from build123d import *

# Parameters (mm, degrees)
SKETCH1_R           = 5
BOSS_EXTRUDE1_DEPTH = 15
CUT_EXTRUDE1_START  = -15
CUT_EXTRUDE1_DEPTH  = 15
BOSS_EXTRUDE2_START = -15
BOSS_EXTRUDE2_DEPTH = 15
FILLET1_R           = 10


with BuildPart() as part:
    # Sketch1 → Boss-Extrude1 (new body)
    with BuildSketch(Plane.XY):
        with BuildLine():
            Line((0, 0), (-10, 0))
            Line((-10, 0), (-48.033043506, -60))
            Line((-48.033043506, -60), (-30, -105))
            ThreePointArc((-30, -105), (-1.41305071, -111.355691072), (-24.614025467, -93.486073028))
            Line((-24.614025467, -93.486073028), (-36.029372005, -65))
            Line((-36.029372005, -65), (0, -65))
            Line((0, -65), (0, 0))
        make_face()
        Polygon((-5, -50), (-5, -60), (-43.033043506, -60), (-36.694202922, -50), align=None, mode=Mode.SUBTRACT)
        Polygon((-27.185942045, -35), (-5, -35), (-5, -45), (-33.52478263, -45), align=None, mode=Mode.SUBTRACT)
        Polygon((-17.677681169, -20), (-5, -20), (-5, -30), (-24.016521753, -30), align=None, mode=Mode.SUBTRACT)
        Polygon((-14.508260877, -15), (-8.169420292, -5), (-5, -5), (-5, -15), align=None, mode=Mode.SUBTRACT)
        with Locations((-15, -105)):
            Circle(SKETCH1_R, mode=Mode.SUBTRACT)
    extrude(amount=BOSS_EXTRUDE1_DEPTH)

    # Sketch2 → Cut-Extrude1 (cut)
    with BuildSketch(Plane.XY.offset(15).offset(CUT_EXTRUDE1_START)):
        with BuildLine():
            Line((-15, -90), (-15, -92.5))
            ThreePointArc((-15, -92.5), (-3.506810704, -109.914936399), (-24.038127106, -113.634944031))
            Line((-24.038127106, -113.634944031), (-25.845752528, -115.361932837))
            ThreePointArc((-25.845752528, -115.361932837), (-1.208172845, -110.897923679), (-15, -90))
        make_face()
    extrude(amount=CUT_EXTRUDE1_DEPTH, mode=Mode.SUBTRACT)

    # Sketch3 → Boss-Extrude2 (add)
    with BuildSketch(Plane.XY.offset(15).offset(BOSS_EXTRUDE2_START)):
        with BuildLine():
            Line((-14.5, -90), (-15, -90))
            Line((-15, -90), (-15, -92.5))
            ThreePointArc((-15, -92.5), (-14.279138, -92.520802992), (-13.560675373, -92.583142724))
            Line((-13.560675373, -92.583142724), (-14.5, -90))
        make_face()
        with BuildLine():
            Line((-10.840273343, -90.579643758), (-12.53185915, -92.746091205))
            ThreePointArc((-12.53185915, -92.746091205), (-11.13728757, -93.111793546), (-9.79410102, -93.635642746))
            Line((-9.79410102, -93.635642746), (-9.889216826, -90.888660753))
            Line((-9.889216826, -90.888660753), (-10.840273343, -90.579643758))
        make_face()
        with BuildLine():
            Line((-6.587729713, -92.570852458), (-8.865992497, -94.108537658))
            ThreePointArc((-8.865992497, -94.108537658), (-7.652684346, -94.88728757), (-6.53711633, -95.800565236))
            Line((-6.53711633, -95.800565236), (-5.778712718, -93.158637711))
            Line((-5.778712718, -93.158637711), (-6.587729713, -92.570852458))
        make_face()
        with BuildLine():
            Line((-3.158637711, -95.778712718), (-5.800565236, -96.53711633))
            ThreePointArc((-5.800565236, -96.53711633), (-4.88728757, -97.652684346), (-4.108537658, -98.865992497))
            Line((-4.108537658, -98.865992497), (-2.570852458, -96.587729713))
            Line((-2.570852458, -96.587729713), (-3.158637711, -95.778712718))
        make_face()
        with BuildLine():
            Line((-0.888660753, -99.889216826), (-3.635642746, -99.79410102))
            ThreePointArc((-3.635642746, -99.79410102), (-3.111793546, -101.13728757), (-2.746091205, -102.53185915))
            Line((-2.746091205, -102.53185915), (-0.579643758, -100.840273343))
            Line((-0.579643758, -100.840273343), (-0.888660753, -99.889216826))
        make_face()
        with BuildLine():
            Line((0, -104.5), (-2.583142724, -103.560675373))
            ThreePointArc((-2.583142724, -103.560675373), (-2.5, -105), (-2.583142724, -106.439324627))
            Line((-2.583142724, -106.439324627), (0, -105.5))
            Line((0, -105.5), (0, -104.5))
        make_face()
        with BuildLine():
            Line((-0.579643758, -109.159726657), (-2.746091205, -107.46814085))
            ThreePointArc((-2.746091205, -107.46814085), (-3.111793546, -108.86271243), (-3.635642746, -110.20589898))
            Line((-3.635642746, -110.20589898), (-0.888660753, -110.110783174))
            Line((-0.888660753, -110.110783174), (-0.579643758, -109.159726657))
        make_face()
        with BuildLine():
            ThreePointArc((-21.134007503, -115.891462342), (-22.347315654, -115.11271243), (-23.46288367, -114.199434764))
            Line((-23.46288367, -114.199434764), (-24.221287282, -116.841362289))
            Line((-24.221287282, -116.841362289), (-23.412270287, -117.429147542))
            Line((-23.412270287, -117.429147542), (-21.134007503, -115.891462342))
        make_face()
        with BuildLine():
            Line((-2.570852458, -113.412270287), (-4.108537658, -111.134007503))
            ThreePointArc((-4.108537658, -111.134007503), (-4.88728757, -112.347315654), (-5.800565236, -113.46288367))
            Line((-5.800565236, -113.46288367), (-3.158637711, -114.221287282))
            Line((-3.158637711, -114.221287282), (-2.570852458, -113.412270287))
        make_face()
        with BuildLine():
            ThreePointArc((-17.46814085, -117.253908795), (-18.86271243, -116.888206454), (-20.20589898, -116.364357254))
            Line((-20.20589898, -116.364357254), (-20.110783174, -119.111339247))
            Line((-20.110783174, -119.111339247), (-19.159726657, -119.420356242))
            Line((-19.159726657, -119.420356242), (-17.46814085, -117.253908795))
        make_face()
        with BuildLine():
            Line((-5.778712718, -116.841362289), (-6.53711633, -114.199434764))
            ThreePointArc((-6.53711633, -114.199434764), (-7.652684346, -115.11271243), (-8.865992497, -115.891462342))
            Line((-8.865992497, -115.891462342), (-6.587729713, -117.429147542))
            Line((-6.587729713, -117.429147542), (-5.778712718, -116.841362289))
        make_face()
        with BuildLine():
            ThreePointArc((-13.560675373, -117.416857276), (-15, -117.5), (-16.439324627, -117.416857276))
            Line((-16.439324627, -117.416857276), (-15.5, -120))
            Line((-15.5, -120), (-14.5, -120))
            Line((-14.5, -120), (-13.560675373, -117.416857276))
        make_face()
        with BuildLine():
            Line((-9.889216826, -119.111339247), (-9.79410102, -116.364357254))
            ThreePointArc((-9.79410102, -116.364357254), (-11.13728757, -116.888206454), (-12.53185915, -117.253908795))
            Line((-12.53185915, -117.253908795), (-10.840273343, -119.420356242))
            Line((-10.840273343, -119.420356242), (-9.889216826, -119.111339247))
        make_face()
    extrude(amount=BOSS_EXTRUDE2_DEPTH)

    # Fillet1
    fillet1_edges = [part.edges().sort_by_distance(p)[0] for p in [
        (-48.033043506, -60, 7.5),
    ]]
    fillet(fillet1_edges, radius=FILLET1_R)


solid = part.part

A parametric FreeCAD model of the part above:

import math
import FreeCAD as App
import Part
import Sketcher
Q = App.Units.Quantity


def edges_at(feature, points):
    """Names of the edges that pass closest to the given points."""
    edges = feature.Shape.Edges
    near = lambda p: min(range(len(edges)), key=lambda i: edges[i].distToShape(Part.Vertex(*p))[0])
    return sorted({f"Edge{near(p) + 1}" for p in points})


def add_polygon(sketch, points):
    """Adds a closed chain of lines whose ends are joined by coincident constraints."""
    first, n = sketch.GeometryCount, len(points)
    for a, b in zip(points, points[1:] + points[:1]):
        sketch.addGeometry(Part.LineSegment(App.Vector(*a, 0), App.Vector(*b, 0)), False)
    for i in range(n):
        sketch.addConstraint(Sketcher.Constraint("Coincident", first + i, 2, first + (i + 1) % n, 1))

doc = App.newDocument("Part")
body = doc.addObject("PartDesign::Body", "Body")

sketch1 = body.newObject("Sketcher::SketchObject", "Sketch")
sketch1.AttachmentSupport = (doc.getObject("XY_Plane"), [""])
sketch1.MapMode = "FlatFace"
sketch1.addGeometry(Part.LineSegment(App.Vector(0, 0, 0), App.Vector(-10, 0, 0)), False)
sketch1.addGeometry(Part.LineSegment(App.Vector(-10, 0, 0), App.Vector(-48.033044, -60, 0)), False)
sketch1.addGeometry(Part.LineSegment(App.Vector(-48.033044, -60, 0), App.Vector(-30, -105, 0)), False)
sketch1.addGeometry(Part.ArcOfCircle(Part.Circle(App.Vector(-15, -105, 0), App.Vector(0, 0, 1), 15), math.radians(180), math.radians(489.861578)), False)
sketch1.addGeometry(Part.LineSegment(App.Vector(-24.614025, -93.486073, 0), App.Vector(-36.029372, -65, 0)), False)
sketch1.addGeometry(Part.LineSegment(App.Vector(-36.029372, -65, 0), App.Vector(0, -65, 0)), False)
sketch1.addGeometry(Part.LineSegment(App.Vector(0, -65, 0), App.Vector(0, 0, 0)), False)
sketch1.addGeometry(Part.Circle(App.Vector(-15, -105, 0), App.Vector(0, 0, 1), 5), False)
add_polygon(sketch1, [(-36.694203, -50), (-5, -50), (-5, -60), (-43.033044, -60)])
add_polygon(sketch1, [(-33.524783, -45), (-27.185942, -35), (-5, -35), (-5, -45)])
add_polygon(sketch1, [(-24.016522, -30), (-17.677681, -20), (-5, -20), (-5, -30)])
add_polygon(sketch1, [(-5, -15), (-14.508261, -15), (-8.16942, -5), (-5, -5)])
sketch1.addConstraint([
    Sketcher.Constraint("Coincident", 0, 2, 1, 1),
    Sketcher.Constraint("Coincident", 1, 2, 2, 1),
    Sketcher.Constraint("Coincident", 2, 2, 3, 1),
    Sketcher.Constraint("Coincident", 3, 2, 4, 1),
    Sketcher.Constraint("Coincident", 4, 2, 5, 1),
    Sketcher.Constraint("Coincident", 5, 2, 6, 1),
    Sketcher.Constraint("Coincident", 6, 2, 0, 1),
    Sketcher.Constraint("Horizontal", 0),
    Sketcher.Constraint("Horizontal", 5),
    Sketcher.Constraint("Vertical", 6),
    Sketcher.Constraint("Horizontal", 8),
    Sketcher.Constraint("Vertical", 9),
    Sketcher.Constraint("Horizontal", 10),
    Sketcher.Constraint("Horizontal", 13),
    Sketcher.Constraint("Vertical", 14),
    Sketcher.Constraint("Horizontal", 15),
    Sketcher.Constraint("Horizontal", 17),
    Sketcher.Constraint("Vertical", 18),
    Sketcher.Constraint("Horizontal", 19),
    Sketcher.Constraint("Horizontal", 20),
    Sketcher.Constraint("Horizontal", 22),
    Sketcher.Constraint("Vertical", 23),
    Sketcher.Constraint("Coincident", 6, 2, -1, 1),
    Sketcher.Constraint("Coincident", 7, 3, 3, 3),
    Sketcher.Constraint("Parallel", 2, 4),
    Sketcher.Constraint("Parallel", 1, 11),
    Sketcher.Constraint("Parallel", 11, 12),
    Sketcher.Constraint("Parallel", 12, 16),
    Sketcher.Constraint("Parallel", 16, 21),
    Sketcher.Constraint("Horizontal", 7, 3, 2, 2),
    Sketcher.Constraint("Horizontal", 1, 2, 9, 2),
    Sketcher.Constraint("Vertical", 9, 2, 13, 2),
    Sketcher.Constraint("Vertical", 14, 2, 17, 2),
    Sketcher.Constraint("Vertical", 18, 2, 22, 2),
    Sketcher.Constraint("Equal", 0, 9),
    Sketcher.Constraint("Equal", 9, 14),
    Sketcher.Constraint("Equal", 14, 18),
    Sketcher.Constraint("Equal", 18, 23),
    Sketcher.Constraint("Diameter", 7, 10.0),
    Sketcher.Constraint("Radius", 3, 15.0),
    Sketcher.Constraint("DistanceX", 0, 2, 0, 1, 10.0),
    Sketcher.Constraint("DistanceY", 6, 1, 6, 2, 65.0),
    Sketcher.Constraint("DistanceX", 3, 3, -1, 1, 15.0),
    Sketcher.Constraint("DistanceY", 3, 3, -1, 1, 105.0),
    Sketcher.Constraint("DistanceY", 1, 2, -1, 1, 60.0),
    Sketcher.Constraint("DistanceX", 8, 2, -1, 1, 5.0),
    Sketcher.Constraint("DistanceY", 12, 2, -1, 1, 35.0),
    Sketcher.Constraint("DistanceY", 16, 2, -1, 1, 20.0),
    Sketcher.Constraint("DistanceY", 20, 2, -1, 1, 15.0),
    Sketcher.Constraint("DistanceX", 1, 2, 10, 2, 5.0),
    Sketcher.Constraint("Distance", 11, 11.839802),
    Sketcher.Constraint("DistanceX", 17, 1, 17, 2, 12.677681),
    Sketcher.Constraint("DistanceX", 20, 2, 20, 1, 9.508261),
    Sketcher.Constraint("DistanceX", 10, 2, 12, 2, 15.847101),
    Sketcher.Constraint("DistanceX", 5, 1, 5, 2, 36.029372),
])
pad1 = body.newObject("PartDesign::Pad", "Pad")
pad1.Profile = sketch1
pad1.Length = 15

sketch2 = body.newObject("Sketcher::SketchObject", "Sketch001")
sketch2.AttachmentSupport = (doc.getObject("XY_Plane"), [""])
sketch2.MapMode = "FlatFace"
sketch2.addGeometry([
    Part.LineSegment(App.Vector(-15, -90, 0), App.Vector(-15, -92.5, 0)),
    Part.ArcOfCircle(Part.Circle(App.Vector(-15, -105, 0), App.Vector(0, 0, 1), 12.5), math.radians(-136.306886), math.radians(90)),
    Part.LineSegment(App.Vector(-24.038127, -113.634944, 0), App.Vector(-25.845753, -115.361933, 0)),
    Part.ArcOfCircle(Part.Circle(App.Vector(-15, -105, 0), App.Vector(0, 0, 1), 15), math.radians(-136.306886), math.radians(90)),
], False)
sketch2.addConstraint([
    Sketcher.Constraint("Coincident", 0, 2, 1, 2),
    Sketcher.Constraint("Coincident", 1, 1, 2, 1),
    Sketcher.Constraint("Coincident", 2, 2, 3, 1),
    Sketcher.Constraint("Coincident", 3, 2, 0, 1),
    Sketcher.Constraint("Vertical", 0),
    Sketcher.Constraint("Coincident", 3, 3, 1, 3),
    Sketcher.Constraint("Vertical", 3, 3, 0, 2),
    Sketcher.Constraint("Radius", 3, 15.0),
    Sketcher.Constraint("Radius", 1, 12.5),
    Sketcher.Constraint("DistanceX", 1, 3, -1, 1, 15.0),
    Sketcher.Constraint("DistanceY", 1, 3, -1, 1, 105.0),
    Sketcher.Constraint("DistanceY", 2, 2, 1, 1, 1.726989),
    Sketcher.Constraint("DistanceX", 1, 1, -1, 1, 24.038127),
])
pocket1 = body.newObject("PartDesign::Pocket", "Pocket")
pocket1.Profile = sketch2
pocket1.Length = 15
pocket1.Reversed = True

sketch3 = body.newObject("Sketcher::SketchObject", "Sketch002")
sketch3.AttachmentSupport = (doc.getObject("XY_Plane"), [""])
sketch3.MapMode = "FlatFace"
sketch3.addGeometry([
    Part.LineSegment(App.Vector(-14.5, -90, 0), App.Vector(-15, -90, 0)),
    Part.LineSegment(App.Vector(-15, -90, 0), App.Vector(-15, -92.5, 0)),
    Part.ArcOfCircle(Part.Circle(App.Vector(-15, -105, 0), App.Vector(0, 0, 1), 12.5), math.radians(83.387956), math.radians(90)),
    Part.LineSegment(App.Vector(-13.560675, -92.583143, 0), App.Vector(-14.5, -90, 0)),
    Part.LineSegment(App.Vector(-10.840273, -90.579644, 0), App.Vector(-12.531859, -92.746091, 0)),
    Part.ArcOfCircle(Part.Circle(App.Vector(-15, -105, 0), App.Vector(0, 0, 1), 12.5), math.radians(65.387955), math.radians(78.612044)),
    Part.LineSegment(App.Vector(-9.794101, -93.635643, 0), App.Vector(-9.889217, -90.888661, 0)),
    Part.LineSegment(App.Vector(-9.889217, -90.888661, 0), App.Vector(-10.840273, -90.579644, 0)),
    Part.LineSegment(App.Vector(-6.58773, -92.570852, 0), App.Vector(-8.865992, -94.108538, 0)),
    Part.ArcOfCircle(Part.Circle(App.Vector(-15, -105, 0), App.Vector(0, 0, 1), 12.5), math.radians(47.387955), math.radians(60.612045)),
    Part.LineSegment(App.Vector(-6.537116, -95.800565, 0), App.Vector(-5.778713, -93.158638, 0)),
    Part.LineSegment(App.Vector(-5.778713, -93.158638, 0), App.Vector(-6.58773, -92.570852, 0)),
    Part.LineSegment(App.Vector(-3.158638, -95.778713, 0), App.Vector(-5.800565, -96.537116, 0)),
    Part.ArcOfCircle(Part.Circle(App.Vector(-15, -105, 0), App.Vector(0, 0, 1), 12.5), math.radians(29.387955), math.radians(42.612045)),
    Part.LineSegment(App.Vector(-4.108538, -98.865992, 0), App.Vector(-2.570852, -96.58773, 0)),
    Part.LineSegment(App.Vector(-2.570852, -96.58773, 0), App.Vector(-3.158638, -95.778713, 0)),
    Part.LineSegment(App.Vector(-0.888661, -99.889217, 0), App.Vector(-3.635643, -99.794101, 0)),
    Part.ArcOfCircle(Part.Circle(App.Vector(-15, -105, 0), App.Vector(0, 0, 1), 12.5), math.radians(11.387956), math.radians(24.612045)),
    Part.LineSegment(App.Vector(-2.746091, -102.531859, 0), App.Vector(-0.579644, -100.840273, 0)),
    Part.LineSegment(App.Vector(-0.579644, -100.840273, 0), App.Vector(-0.888661, -99.889217, 0)),
    Part.LineSegment(App.Vector(0, -104.5, 0), App.Vector(-2.583143, -103.560675, 0)),
    Part.ArcOfCircle(Part.Circle(App.Vector(-15, -105, 0), App.Vector(0, 0, 1), 12.5), math.radians(-6.612044), math.radians(6.612044)),
    Part.LineSegment(App.Vector(-2.583143, -106.439325, 0), App.Vector(0, -105.5, 0)),
    Part.LineSegment(App.Vector(0, -105.5, 0), App.Vector(0, -104.5, 0)),
    Part.LineSegment(App.Vector(-0.579644, -109.159727, 0), App.Vector(-2.746091, -107.468141, 0)),
    Part.ArcOfCircle(Part.Circle(App.Vector(-15, -105, 0), App.Vector(0, 0, 1), 12.5), math.radians(-24.612045), math.radians(-11.387956)),
    Part.LineSegment(App.Vector(-3.635643, -110.205899, 0), App.Vector(-0.888661, -110.110783, 0)),
    Part.LineSegment(App.Vector(-0.888661, -110.110783, 0), App.Vector(-0.579644, -109.159727, 0)),
    Part.ArcOfCircle(Part.Circle(App.Vector(-15, -105, 0), App.Vector(0, 0, 1), 12.5), math.radians(-132.612045), math.radians(-119.387955)),
    Part.LineSegment(App.Vector(-23.462884, -114.199435, 0), App.Vector(-24.221287, -116.841362, 0)),
    Part.LineSegment(App.Vector(-24.221287, -116.841362, 0), App.Vector(-23.41227, -117.429148, 0)),
    Part.LineSegment(App.Vector(-23.41227, -117.429148, 0), App.Vector(-21.134008, -115.891462, 0)),
    Part.LineSegment(App.Vector(-2.570852, -113.41227, 0), App.Vector(-4.108538, -111.134008, 0)),
    Part.ArcOfCircle(Part.Circle(App.Vector(-15, -105, 0), App.Vector(0, 0, 1), 12.5), math.radians(-42.612045), math.radians(-29.387955)),
    Part.LineSegment(App.Vector(-5.800565, -113.462884, 0), App.Vector(-3.158638, -114.221287, 0)),
    Part.LineSegment(App.Vector(-3.158638, -114.221287, 0), App.Vector(-2.570852, -113.41227, 0)),
    Part.ArcOfCircle(Part.Circle(App.Vector(-15, -105, 0), App.Vector(0, 0, 1), 12.5), math.radians(-114.612045), math.radians(-101.387956)),
    Part.LineSegment(App.Vector(-20.205899, -116.364357, 0), App.Vector(-20.110783, -119.111339, 0)),
    Part.LineSegment(App.Vector(-20.110783, -119.111339, 0), App.Vector(-19.159727, -119.420356, 0)),
    Part.LineSegment(App.Vector(-19.159727, -119.420356, 0), App.Vector(-17.468141, -117.253909, 0)),
    Part.LineSegment(App.Vector(-5.778713, -116.841362, 0), App.Vector(-6.537116, -114.199435, 0)),
    Part.ArcOfCircle(Part.Circle(App.Vector(-15, -105, 0), App.Vector(0, 0, 1), 12.5), math.radians(-60.612045), math.radians(-47.387955)),
    Part.LineSegment(App.Vector(-8.865992, -115.891462, 0), App.Vector(-6.58773, -117.429148, 0)),
    Part.LineSegment(App.Vector(-6.58773, -117.429148, 0), App.Vector(-5.778713, -116.841362, 0)),
    Part.ArcOfCircle(Part.Circle(App.Vector(-15, -105, 0), App.Vector(0, 0, 1), 12.5), math.radians(-96.612044), math.radians(-83.387956)),
    Part.LineSegment(App.Vector(-16.439325, -117.416857, 0), App.Vector(-15.5, -120, 0)),
    Part.LineSegment(App.Vector(-15.5, -120, 0), App.Vector(-14.5, -120, 0)),
    Part.LineSegment(App.Vector(-14.5, -120, 0), App.Vector(-13.560675, -117.416857, 0)),
    Part.LineSegment(App.Vector(-9.889217, -119.111339, 0), App.Vector(-9.794101, -116.364357, 0)),
    Part.ArcOfCircle(Part.Circle(App.Vector(-15, -105, 0), App.Vector(0, 0, 1), 12.5), math.radians(-78.612044), math.radians(-65.387955)),
    Part.LineSegment(App.Vector(-12.531859, -117.253909, 0), App.Vector(-10.840273, -119.420356, 0)),
    Part.LineSegment(App.Vector(-10.840273, -119.420356, 0), App.Vector(-9.889217, -119.111339, 0)),
], False)
sketch3.addConstraint([
    Sketcher.Constraint("Coincident", 0, 2, 1, 1),
    Sketcher.Constraint("Coincident", 1, 2, 2, 2),
    Sketcher.Constraint("Coincident", 2, 1, 3, 1),
    Sketcher.Constraint("Coincident", 3, 2, 0, 1),
    Sketcher.Constraint("Coincident", 4, 2, 5, 2),
    Sketcher.Constraint("Coincident", 5, 1, 6, 1),
    Sketcher.Constraint("Coincident", 6, 2, 7, 1),
    Sketcher.Constraint("Coincident", 7, 2, 4, 1),
    Sketcher.Constraint("Coincident", 8, 2, 9, 2),
    Sketcher.Constraint("Coincident", 9, 1, 10, 1),
    Sketcher.Constraint("Coincident", 10, 2, 11, 1),
    Sketcher.Constraint("Coincident", 11, 2, 8, 1),
    Sketcher.Constraint("Coincident", 12, 2, 13, 2),
    Sketcher.Constraint("Coincident", 13, 1, 14, 1),
    Sketcher.Constraint("Coincident", 14, 2, 15, 1),
    Sketcher.Constraint("Coincident", 15, 2, 12, 1),
    Sketcher.Constraint("Coincident", 16, 2, 17, 2),
    Sketcher.Constraint("Coincident", 17, 1, 18, 1),
    Sketcher.Constraint("Coincident", 18, 2, 19, 1),
    Sketcher.Constraint("Coincident", 19, 2, 16, 1),
    Sketcher.Constraint("Coincident", 20, 2, 21, 2),
    Sketcher.Constraint("Coincident", 21, 1, 22, 1),
    Sketcher.Constraint("Coincident", 22, 2, 23, 1),
    Sketcher.Constraint("Coincident", 23, 2, 20, 1),
    Sketcher.Constraint("Coincident", 24, 2, 25, 2),
    Sketcher.Constraint("Coincident", 25, 1, 26, 1),
    Sketcher.Constraint("Coincident", 26, 2, 27, 1),
    Sketcher.Constraint("Coincident", 27, 2, 24, 1),
    Sketcher.Constraint("Coincident", 28, 1, 29, 1),
    Sketcher.Constraint("Coincident", 29, 2, 30, 1),
    Sketcher.Constraint("Coincident", 30, 2, 31, 1),
    Sketcher.Constraint("Coincident", 31, 2, 28, 2),
    Sketcher.Constraint("Coincident", 32, 2, 33, 2),
    Sketcher.Constraint("Coincident", 33, 1, 34, 1),
    Sketcher.Constraint("Coincident", 34, 2, 35, 1),
    Sketcher.Constraint("Coincident", 35, 2, 32, 1),
    Sketcher.Constraint("Coincident", 36, 1, 37, 1),
    Sketcher.Constraint("Coincident", 37, 2, 38, 1),
    Sketcher.Constraint("Coincident", 38, 2, 39, 1),
    Sketcher.Constraint("Coincident", 39, 2, 36, 2),
    Sketcher.Constraint("Coincident", 40, 2, 41, 2),
    Sketcher.Constraint("Coincident", 41, 1, 42, 1),
    Sketcher.Constraint("Coincident", 42, 2, 43, 1),
    Sketcher.Constraint("Coincident", 43, 2, 40, 1),
    Sketcher.Constraint("Coincident", 44, 1, 45, 1),
    Sketcher.Constraint("Coincident", 45, 2, 46, 1),
    Sketcher.Constraint("Coincident", 46, 2, 47, 1),
    Sketcher.Constraint("Coincident", 47, 2, 44, 2),
    Sketcher.Constraint("Coincident", 48, 2, 49, 2),
    Sketcher.Constraint("Coincident", 49, 1, 50, 1),
    Sketcher.Constraint("Coincident", 50, 2, 51, 1),
    Sketcher.Constraint("Coincident", 51, 2, 48, 1),
    Sketcher.Constraint("Horizontal", 0),
    Sketcher.Constraint("Vertical", 1),
    Sketcher.Constraint("Vertical", 23),
    Sketcher.Constraint("Horizontal", 46),
    Sketcher.Constraint("Coincident", 5, 3, 2, 3),
    Sketcher.Constraint("Coincident", 9, 3, 2, 3),
    Sketcher.Constraint("Coincident", 13, 3, 2, 3),
    Sketcher.Constraint("Coincident", 17, 3, 2, 3),
    Sketcher.Constraint("Coincident", 21, 3, 2, 3),
    Sketcher.Constraint("Coincident", 25, 3, 2, 3),
    Sketcher.Constraint("Coincident", 28, 3, 2, 3),
    Sketcher.Constraint("Coincident", 33, 3, 2, 3),
    Sketcher.Constraint("Coincident", 36, 3, 2, 3),
    Sketcher.Constraint("Coincident", 41, 3, 2, 3),
    Sketcher.Constraint("Coincident", 44, 3, 2, 3),
    Sketcher.Constraint("Coincident", 49, 3, 2, 3),
    Sketcher.Constraint("Equal", 2, 5),
    Sketcher.Constraint("Equal", 5, 9),
    Sketcher.Constraint("Equal", 9, 13),
    Sketcher.Constraint("Equal", 13, 17),
    Sketcher.Constraint("Equal", 17, 21),
    Sketcher.Constraint("Equal", 21, 25),
    Sketcher.Constraint("Equal", 25, 28),
    Sketcher.Constraint("Equal", 28, 33),
    Sketcher.Constraint("Equal", 33, 36),
    Sketcher.Constraint("Equal", 36, 41),
    Sketcher.Constraint("Equal", 41, 44),
    Sketcher.Constraint("Equal", 44, 49),
    Sketcher.Constraint("PointOnObject", 22, 2, -2),
    Sketcher.Constraint("Perpendicular", 3, 22),
    Sketcher.Constraint("Perpendicular", 4, 24),
    Sketcher.Constraint("Perpendicular", 6, 26),
    Sketcher.Constraint("Perpendicular", 7, 27),
    Sketcher.Constraint("Parallel", 10, 29),
    Sketcher.Constraint("Parallel", 11, 30),
    Sketcher.Constraint("Parallel", 8, 31),
    Sketcher.Constraint("Perpendicular", 31, 32),
    Sketcher.Constraint("Perpendicular", 29, 34),
    Sketcher.Constraint("Perpendicular", 30, 35),
    Sketcher.Constraint("Perpendicular", 26, 37),
    Sketcher.Constraint("Perpendicular", 27, 38),
    Sketcher.Constraint("Perpendicular", 24, 39),
    Sketcher.Constraint("Perpendicular", 12, 40),
    Sketcher.Constraint("Perpendicular", 14, 42),
    Sketcher.Constraint("Perpendicular", 15, 43),
    Sketcher.Constraint("Perpendicular", 22, 45),
    Sketcher.Constraint("Perpendicular", 20, 47),
    Sketcher.Constraint("Perpendicular", 16, 48),
    Sketcher.Constraint("Perpendicular", 18, 50),
    Sketcher.Constraint("Perpendicular", 19, 51),
    Sketcher.Constraint("Horizontal", 28, 1, 40, 2),
    Sketcher.Constraint("Horizontal", 31, 2, 41, 1),
    Sketcher.Constraint("Horizontal", 30, 2, 42, 2),
    Sketcher.Constraint("Horizontal", 29, 2, 43, 2),
    Sketcher.Constraint("Horizontal", 44, 1, 47, 2),
    Sketcher.Constraint("Horizontal", 36, 1, 48, 2),
    Sketcher.Constraint("Horizontal", 39, 2, 49, 1),
    Sketcher.Constraint("Horizontal", 38, 2, 50, 2),
    Sketcher.Constraint("Horizontal", 37, 2, 51, 2),
    Sketcher.Constraint("Vertical", 49, 3, 0, 2),
    Sketcher.Constraint("Vertical", 20, 2, 21, 1),
    Sketcher.Constraint("Vertical", 17, 1, 24, 2),
    Sketcher.Constraint("Vertical", 16, 2, 25, 1),
    Sketcher.Constraint("Vertical", 19, 2, 26, 2),
    Sketcher.Constraint("Vertical", 13, 1, 32, 2),
    Sketcher.Constraint("Vertical", 12, 2, 33, 1),
    Sketcher.Constraint("Vertical", 15, 2, 34, 2),
    Sketcher.Constraint("Vertical", 9, 1, 40, 2),
    Sketcher.Constraint("Vertical", 8, 2, 41, 1),
    Sketcher.Constraint("Vertical", 11, 2, 42, 2),
    Sketcher.Constraint("Vertical", 10, 2, 43, 2),
    Sketcher.Constraint("Vertical", 3, 2, 46, 2),
    Sketcher.Constraint("Vertical", 2, 1, 47, 2),
    Sketcher.Constraint("Vertical", 5, 1, 48, 2),
    Sketcher.Constraint("Vertical", 4, 2, 49, 1),
    Sketcher.Constraint("Vertical", 7, 2, 50, 2),
    Sketcher.Constraint("Vertical", 6, 2, 51, 2),
    Sketcher.Constraint("Equal", 46, 23),
    Sketcher.Constraint("Equal", 3, 4),
    Sketcher.Constraint("Equal", 4, 6),
    Sketcher.Constraint("Equal", 6, 8),
    Sketcher.Constraint("Equal", 8, 10),
    Sketcher.Constraint("Equal", 7, 11),
    Sketcher.Constraint("Equal", 10, 12),
    Sketcher.Constraint("Equal", 12, 14),
    Sketcher.Constraint("Equal", 11, 15),
    Sketcher.Constraint("Equal", 14, 16),
    Sketcher.Constraint("Equal", 16, 18),
    Sketcher.Constraint("Equal", 15, 19),
    Sketcher.Constraint("Equal", 18, 20),
    Sketcher.Constraint("Equal", 20, 22),
    Sketcher.Constraint("Equal", 22, 24),
    Sketcher.Constraint("Equal", 26, 29),
    Sketcher.Constraint("Radius", 2, 12.5),
    Sketcher.Constraint("DistanceX", 46, 1, 46, 2, 1.0),
    Sketcher.Constraint("Angle", 7, Q("162 deg")),
    Sketcher.Constraint("Angle", 11, Q("144 deg")),
    Sketcher.Constraint("Distance", 7, 1.0),
    Sketcher.Constraint("DistanceY", 1, 2, 1, 1, 2.5),
    Sketcher.Constraint("DistanceY", 2, 3, -1, 1, 105.0),
    Sketcher.Constraint("DistanceX", 5, 1, -1, 1, 9.794101),
    Sketcher.Constraint("Distance", 3, 2.748628),
    Sketcher.Constraint("DistanceX", 4, 2, -1, 1, 12.531859),
    Sketcher.Constraint("DistanceX", 11, 2, -1, 1, 6.58773),
    Sketcher.Constraint("DistanceX", 8, 2, -1, 1, 8.865992),
])
pad2 = body.newObject("PartDesign::Pad", "Pad001")
pad2.Profile = sketch3
pad2.Length = 15
doc.recompute()

fillet = body.newObject("PartDesign::Fillet", "Fillet")
fillet.Base = (pad2, edges_at(pad2, [(-48.033, -60, 7.5)]))
fillet.Radius = 10

doc.recompute()
